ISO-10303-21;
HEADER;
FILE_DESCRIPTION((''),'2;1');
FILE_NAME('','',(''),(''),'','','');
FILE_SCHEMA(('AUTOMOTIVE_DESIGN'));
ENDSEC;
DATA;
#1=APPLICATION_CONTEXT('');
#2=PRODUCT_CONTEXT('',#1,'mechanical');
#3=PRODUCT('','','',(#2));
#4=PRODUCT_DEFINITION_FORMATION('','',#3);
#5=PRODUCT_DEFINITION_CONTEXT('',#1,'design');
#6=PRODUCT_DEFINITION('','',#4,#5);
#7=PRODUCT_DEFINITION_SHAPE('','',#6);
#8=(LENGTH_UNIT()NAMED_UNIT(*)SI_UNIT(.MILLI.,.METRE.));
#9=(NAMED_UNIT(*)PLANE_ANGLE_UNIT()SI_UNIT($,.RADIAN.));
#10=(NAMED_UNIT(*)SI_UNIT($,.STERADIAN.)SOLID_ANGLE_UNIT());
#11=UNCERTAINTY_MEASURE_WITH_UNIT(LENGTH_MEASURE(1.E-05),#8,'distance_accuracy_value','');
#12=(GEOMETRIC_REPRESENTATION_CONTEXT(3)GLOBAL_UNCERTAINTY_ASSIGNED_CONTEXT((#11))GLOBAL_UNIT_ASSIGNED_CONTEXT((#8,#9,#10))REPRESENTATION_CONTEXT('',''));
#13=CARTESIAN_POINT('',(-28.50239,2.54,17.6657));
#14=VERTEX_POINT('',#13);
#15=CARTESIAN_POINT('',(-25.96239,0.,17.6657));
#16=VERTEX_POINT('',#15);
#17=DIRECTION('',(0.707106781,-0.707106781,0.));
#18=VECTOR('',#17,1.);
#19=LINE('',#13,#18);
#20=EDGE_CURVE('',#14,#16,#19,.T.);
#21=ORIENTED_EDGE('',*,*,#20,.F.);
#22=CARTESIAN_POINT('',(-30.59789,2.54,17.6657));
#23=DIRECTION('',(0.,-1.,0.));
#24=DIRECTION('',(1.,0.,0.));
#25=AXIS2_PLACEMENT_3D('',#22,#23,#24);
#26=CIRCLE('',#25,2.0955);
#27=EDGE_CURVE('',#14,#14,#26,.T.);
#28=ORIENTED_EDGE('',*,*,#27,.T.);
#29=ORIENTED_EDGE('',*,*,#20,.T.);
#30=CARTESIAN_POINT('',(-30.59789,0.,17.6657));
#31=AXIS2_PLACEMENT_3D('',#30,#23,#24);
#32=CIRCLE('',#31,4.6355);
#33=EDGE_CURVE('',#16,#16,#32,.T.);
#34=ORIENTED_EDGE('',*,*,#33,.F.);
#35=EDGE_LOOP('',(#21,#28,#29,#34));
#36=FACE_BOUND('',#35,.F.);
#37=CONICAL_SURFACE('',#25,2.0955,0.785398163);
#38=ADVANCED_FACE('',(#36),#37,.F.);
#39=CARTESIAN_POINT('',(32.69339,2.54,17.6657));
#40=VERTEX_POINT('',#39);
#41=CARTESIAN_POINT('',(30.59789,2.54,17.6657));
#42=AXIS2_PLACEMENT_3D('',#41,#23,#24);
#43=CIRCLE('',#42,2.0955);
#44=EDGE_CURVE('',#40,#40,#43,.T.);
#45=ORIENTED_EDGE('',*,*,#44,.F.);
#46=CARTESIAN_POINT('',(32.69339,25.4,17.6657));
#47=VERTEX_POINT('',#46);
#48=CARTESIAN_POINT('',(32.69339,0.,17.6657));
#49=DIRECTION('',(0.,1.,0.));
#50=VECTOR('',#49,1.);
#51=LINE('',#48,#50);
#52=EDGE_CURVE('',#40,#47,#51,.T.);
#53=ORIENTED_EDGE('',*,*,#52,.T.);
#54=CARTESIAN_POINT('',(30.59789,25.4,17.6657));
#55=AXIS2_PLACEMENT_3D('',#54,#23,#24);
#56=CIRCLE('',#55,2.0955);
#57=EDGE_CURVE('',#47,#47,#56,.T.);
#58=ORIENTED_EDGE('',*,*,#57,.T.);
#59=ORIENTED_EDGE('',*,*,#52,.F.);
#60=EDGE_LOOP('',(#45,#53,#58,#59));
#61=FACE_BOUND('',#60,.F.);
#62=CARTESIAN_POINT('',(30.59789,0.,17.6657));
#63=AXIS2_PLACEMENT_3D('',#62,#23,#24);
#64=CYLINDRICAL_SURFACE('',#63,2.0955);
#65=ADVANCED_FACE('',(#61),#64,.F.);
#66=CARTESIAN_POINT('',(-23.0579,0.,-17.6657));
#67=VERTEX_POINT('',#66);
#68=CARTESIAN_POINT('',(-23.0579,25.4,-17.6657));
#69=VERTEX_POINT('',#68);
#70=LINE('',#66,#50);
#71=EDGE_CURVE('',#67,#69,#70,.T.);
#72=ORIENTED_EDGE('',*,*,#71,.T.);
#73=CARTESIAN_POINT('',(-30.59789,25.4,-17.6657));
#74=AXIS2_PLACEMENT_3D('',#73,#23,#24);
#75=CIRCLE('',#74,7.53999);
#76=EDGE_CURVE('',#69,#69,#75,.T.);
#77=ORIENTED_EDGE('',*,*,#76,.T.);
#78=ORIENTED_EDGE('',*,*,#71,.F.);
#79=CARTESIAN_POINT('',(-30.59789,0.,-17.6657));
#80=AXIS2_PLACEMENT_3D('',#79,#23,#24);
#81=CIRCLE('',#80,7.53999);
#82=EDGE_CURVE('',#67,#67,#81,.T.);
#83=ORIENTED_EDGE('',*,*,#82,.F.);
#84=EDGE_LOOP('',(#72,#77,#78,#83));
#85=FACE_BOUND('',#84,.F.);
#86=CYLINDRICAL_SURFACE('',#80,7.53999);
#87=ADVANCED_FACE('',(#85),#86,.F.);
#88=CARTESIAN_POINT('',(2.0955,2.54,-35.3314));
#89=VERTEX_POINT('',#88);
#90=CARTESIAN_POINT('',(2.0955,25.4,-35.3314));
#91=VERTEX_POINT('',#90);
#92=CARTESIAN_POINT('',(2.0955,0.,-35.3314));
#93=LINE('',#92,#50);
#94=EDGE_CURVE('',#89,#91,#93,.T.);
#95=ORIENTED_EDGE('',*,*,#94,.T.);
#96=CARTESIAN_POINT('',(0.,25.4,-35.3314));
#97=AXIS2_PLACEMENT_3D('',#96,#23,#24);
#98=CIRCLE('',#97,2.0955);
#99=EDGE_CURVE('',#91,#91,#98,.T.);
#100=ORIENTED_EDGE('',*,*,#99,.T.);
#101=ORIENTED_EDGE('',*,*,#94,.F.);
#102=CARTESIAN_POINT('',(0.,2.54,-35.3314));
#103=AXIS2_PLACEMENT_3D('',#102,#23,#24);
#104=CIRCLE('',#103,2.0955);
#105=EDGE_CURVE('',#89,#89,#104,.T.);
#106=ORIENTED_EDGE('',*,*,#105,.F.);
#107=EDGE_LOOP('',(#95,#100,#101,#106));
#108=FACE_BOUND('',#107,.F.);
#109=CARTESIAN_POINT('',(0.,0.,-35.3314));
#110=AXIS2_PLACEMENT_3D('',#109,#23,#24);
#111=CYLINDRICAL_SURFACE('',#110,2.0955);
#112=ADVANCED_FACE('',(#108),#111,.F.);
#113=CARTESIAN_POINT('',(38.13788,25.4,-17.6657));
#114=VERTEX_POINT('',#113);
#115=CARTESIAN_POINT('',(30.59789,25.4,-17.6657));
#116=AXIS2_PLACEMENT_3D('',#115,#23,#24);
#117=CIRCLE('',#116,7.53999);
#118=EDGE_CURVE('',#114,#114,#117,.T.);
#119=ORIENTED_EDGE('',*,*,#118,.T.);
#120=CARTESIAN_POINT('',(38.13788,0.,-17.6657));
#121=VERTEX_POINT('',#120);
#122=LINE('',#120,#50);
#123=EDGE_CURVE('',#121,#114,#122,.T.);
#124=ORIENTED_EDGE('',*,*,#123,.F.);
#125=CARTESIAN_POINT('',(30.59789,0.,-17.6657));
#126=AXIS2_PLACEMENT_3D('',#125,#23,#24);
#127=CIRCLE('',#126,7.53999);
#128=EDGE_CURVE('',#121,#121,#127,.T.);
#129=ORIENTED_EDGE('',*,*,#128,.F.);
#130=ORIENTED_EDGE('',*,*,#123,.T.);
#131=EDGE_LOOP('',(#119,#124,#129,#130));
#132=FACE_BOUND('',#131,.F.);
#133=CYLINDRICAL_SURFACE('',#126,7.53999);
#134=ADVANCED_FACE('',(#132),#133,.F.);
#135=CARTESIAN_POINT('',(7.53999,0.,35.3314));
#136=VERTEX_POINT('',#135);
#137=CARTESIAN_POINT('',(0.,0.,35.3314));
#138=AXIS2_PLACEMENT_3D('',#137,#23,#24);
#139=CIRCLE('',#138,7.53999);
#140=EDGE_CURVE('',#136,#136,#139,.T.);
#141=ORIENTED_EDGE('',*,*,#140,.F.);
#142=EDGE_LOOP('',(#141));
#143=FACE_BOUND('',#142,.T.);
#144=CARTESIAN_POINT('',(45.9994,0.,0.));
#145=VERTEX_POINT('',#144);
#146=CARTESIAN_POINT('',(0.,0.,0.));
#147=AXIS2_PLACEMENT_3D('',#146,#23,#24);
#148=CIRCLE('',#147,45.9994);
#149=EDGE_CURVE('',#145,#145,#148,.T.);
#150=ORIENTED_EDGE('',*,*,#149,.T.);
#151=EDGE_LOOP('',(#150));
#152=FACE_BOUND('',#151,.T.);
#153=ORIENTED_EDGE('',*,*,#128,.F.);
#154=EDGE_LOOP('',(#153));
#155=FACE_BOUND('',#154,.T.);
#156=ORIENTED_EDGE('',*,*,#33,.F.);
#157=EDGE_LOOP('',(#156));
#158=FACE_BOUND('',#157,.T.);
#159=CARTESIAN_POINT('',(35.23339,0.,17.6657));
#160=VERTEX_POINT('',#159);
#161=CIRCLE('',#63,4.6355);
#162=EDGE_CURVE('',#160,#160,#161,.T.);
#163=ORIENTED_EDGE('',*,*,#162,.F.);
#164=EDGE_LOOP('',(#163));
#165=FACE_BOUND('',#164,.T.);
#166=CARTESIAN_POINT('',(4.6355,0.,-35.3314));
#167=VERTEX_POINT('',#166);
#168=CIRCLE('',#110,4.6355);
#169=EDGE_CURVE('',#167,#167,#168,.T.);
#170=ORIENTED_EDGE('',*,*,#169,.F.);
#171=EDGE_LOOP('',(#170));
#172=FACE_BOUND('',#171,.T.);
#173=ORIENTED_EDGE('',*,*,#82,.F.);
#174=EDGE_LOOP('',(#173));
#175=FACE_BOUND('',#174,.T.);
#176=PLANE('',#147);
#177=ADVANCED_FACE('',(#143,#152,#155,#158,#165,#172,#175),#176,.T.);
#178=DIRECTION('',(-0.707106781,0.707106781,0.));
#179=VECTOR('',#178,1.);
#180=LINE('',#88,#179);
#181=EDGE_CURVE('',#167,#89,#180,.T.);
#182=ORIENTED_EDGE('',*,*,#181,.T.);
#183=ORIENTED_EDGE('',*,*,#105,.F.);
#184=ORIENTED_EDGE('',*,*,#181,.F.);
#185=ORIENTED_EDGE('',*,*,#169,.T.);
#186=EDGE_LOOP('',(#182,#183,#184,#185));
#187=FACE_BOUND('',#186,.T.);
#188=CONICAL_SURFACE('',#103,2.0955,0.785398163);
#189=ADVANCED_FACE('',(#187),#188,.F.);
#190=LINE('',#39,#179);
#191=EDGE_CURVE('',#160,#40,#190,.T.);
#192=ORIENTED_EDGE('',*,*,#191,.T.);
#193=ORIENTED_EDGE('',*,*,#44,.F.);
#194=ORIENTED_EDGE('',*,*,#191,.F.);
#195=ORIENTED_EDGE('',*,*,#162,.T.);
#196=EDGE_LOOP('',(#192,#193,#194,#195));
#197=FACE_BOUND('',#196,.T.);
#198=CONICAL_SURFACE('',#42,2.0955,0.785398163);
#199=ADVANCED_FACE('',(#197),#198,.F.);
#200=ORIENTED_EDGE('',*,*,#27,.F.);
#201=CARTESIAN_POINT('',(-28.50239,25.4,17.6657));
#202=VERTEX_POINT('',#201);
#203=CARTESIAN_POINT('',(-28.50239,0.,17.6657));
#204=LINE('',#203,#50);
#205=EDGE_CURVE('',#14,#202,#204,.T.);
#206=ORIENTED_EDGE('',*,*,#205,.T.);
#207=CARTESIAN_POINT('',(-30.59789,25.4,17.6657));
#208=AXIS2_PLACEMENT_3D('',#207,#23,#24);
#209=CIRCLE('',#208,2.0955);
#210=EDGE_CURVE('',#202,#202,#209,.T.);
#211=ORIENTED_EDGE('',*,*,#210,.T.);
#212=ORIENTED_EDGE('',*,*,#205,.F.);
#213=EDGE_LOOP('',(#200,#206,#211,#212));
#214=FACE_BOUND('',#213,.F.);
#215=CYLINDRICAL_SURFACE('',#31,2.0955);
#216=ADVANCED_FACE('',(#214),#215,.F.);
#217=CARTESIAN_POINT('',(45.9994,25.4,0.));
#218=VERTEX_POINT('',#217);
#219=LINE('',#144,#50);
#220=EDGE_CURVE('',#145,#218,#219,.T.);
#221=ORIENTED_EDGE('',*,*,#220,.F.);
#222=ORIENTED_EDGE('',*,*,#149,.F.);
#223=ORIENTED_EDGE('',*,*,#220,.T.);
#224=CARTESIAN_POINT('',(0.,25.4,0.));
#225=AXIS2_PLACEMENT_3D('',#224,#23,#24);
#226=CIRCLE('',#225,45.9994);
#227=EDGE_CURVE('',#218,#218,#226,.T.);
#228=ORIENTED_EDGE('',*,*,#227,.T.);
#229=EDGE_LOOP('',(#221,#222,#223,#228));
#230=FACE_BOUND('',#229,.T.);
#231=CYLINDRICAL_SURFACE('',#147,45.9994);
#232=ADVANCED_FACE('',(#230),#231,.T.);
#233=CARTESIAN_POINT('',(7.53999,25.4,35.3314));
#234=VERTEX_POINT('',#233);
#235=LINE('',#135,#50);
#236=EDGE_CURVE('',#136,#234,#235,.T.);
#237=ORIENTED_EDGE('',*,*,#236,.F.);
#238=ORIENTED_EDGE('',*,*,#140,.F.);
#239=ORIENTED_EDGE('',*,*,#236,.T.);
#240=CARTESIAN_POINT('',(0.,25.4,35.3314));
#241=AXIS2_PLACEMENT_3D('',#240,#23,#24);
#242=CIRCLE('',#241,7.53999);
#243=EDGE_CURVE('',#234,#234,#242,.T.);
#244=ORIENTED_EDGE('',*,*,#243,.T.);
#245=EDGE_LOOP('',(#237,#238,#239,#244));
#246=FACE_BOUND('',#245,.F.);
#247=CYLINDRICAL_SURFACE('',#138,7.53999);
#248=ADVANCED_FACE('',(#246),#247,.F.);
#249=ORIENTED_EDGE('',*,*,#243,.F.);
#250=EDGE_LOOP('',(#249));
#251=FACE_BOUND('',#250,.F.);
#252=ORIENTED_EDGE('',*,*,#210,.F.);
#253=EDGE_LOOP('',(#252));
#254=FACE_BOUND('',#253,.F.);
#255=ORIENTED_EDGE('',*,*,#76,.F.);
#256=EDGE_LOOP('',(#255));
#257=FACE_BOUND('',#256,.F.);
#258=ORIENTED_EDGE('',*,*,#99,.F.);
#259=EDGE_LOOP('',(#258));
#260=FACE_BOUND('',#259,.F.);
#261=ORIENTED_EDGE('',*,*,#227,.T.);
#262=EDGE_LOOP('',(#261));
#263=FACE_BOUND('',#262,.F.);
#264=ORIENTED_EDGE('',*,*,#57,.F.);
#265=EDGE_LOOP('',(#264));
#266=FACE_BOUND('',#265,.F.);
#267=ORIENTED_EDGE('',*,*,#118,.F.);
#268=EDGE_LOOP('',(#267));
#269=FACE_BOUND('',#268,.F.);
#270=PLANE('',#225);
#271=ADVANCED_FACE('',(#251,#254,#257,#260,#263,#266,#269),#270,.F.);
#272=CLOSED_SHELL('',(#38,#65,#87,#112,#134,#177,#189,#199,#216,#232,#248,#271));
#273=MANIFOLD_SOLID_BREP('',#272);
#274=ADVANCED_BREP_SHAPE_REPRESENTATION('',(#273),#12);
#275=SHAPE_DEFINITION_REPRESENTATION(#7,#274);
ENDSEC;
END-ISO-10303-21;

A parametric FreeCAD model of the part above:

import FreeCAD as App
import Part
import Sketcher
from FreeCAD import Vector
Q = App.Units.Quantity


def edges_at(feature, points):
    """Names of the edges that pass closest to the given points."""
    edges = feature.Shape.Edges
    near = lambda p: min(range(len(edges)), key=lambda i: edges[i].distToShape(Part.Vertex(*p))[0])
    return sorted({f"Edge{near(p) + 1}" for p in points})

doc = App.newDocument("Part")
body = doc.addObject("PartDesign::Body", "Body")

# Sketch on XZ plane
sketch1 = body.newObject("Sketcher::SketchObject", "Sketch")
sketch1.AttachmentSupport = (doc.getObject("XZ_Plane"), [""])
sketch1.MapMode = "FlatFace"
sketch1.addGeometry([
    Part.Circle(Vector(0, 0, 0), Vector(0, 0, 1), 45.9994),  # 0
    Part.Circle(Vector(-30.59789, -17.6657, 0), Vector(0, 0, 1), 7.53999),  # 1
    Part.Circle(Vector(0, -35.3314, 0), Vector(0, 0, 1), 2.0955),  # 2
    Part.Circle(Vector(30.59789, -17.6657, 0), Vector(0, 0, 1), 7.53999),  # 3
    Part.Circle(Vector(-30.59789, 17.6657, 0), Vector(0, 0, 1), 2.0955),  # 4
    Part.Circle(Vector(0, 35.3314, 0), Vector(0, 0, 1), 7.53999),  # 5
    Part.Circle(Vector(30.59789, 17.6657, 0), Vector(0, 0, 1), 2.0955),  # 6
], False)
sketch1.addConstraint([
    Sketcher.Constraint("Coincident", 0, 3, -1, 1),
    Sketcher.Constraint("Equal", 1, 3),
    Sketcher.Constraint("Equal", 2, 4),
    Sketcher.Constraint("Equal", 3, 5),
    Sketcher.Constraint("Equal", 4, 6),
    Sketcher.Constraint("Symmetric", 3, 3, 4, 3, -1, 1),
    Sketcher.Constraint("Symmetric", 2, 3, 5, 3, -1, 1),
    Sketcher.Constraint("Symmetric", 1, 3, 6, 3, -1, 1),
    Sketcher.Constraint("Symmetric", 1, 3, 3, 3, -2),
    Sketcher.Constraint("PointOnObject", 2, 3, -2),
    Sketcher.Constraint("Diameter", 0, Q("3.622 in")),
    Sketcher.Constraint("Diameter", 2, Q("0.165 in")),
    Sketcher.Constraint("Diameter", 1, Q("0.5937 in")),
    Sketcher.Constraint("DistanceY", 2, 3, -1, 1, Q("1.391 in")),
    Sketcher.Constraint("DistanceY", 1, 3, 4, 3, Q("1.391 in")),
    Sketcher.Constraint("DistanceX", 1, 3, -1, 1, Q("30.59789 mm")),
])
pad1 = body.newObject("PartDesign::Pad", "Pad")
pad1.Profile = sketch1
pad1.Length = Q("1 in")
pad1.Reversed = True
doc.recompute()

chamfer = body.newObject("PartDesign::Chamfer", "Chamfer")
chamfer.Base = (pad1, edges_at(pad1, [(-32.693, 0, 17.666)]))
chamfer.Size = Q("0.1 in")
doc.recompute()

chamfer2 = body.newObject("PartDesign::Chamfer", "Chamfer001")
chamfer2.Base = (chamfer, edges_at(chamfer, [(28.502, 0, 17.666)]))
chamfer2.Size = Q("0.1 in")
doc.recompute()

chamfer3 = body.newObject("PartDesign::Chamfer", "Chamfer002")
chamfer3.Base = (chamfer2, edges_at(chamfer2, [(-2.095, 0, -35.331)]))
chamfer3.Size = Q("0.1 in")

doc.recompute()
